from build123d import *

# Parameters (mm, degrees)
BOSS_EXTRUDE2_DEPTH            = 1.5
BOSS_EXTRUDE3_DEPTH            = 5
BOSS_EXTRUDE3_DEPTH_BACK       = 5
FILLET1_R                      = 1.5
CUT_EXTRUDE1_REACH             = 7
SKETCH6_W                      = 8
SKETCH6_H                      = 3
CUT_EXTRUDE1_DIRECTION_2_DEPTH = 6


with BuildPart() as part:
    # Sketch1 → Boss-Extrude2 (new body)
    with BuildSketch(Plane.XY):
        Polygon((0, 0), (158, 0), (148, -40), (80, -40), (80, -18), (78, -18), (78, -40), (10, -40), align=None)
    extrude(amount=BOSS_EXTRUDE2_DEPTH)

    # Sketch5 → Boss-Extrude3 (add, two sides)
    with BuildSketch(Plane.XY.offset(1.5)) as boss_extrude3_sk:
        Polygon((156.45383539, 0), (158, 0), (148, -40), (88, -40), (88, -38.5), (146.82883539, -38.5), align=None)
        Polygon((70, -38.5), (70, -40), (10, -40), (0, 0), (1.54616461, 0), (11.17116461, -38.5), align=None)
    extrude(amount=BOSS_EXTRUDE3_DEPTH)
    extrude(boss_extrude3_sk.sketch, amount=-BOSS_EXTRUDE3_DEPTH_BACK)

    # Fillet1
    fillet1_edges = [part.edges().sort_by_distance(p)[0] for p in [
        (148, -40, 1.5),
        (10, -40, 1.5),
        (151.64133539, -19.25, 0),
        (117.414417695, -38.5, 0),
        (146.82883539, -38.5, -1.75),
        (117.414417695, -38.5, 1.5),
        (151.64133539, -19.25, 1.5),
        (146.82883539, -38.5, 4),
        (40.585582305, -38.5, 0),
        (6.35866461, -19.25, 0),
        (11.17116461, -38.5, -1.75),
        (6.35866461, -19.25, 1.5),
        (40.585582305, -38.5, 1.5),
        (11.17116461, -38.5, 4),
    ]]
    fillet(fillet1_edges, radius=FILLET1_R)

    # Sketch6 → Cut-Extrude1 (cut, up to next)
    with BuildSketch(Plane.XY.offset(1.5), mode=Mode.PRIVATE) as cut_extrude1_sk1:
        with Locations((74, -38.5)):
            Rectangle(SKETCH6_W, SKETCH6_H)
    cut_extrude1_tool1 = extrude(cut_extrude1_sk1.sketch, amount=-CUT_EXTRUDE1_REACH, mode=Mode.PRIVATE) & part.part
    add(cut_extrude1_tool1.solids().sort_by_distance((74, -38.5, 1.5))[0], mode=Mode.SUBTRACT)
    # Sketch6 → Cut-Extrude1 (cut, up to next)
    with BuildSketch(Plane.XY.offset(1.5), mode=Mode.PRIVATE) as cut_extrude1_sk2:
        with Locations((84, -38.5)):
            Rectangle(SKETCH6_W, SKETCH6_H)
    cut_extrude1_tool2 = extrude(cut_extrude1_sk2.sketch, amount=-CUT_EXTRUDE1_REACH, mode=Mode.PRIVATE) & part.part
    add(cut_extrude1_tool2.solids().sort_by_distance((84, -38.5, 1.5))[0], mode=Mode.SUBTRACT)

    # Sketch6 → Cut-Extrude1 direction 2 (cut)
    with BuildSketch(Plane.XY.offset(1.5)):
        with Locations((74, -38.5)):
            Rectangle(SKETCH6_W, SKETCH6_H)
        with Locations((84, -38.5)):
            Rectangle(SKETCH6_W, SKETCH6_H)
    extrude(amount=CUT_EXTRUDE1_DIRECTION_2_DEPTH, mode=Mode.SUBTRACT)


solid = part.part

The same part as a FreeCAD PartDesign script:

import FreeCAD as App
import Part
import Sketcher
Q = App.Units.Quantity


def edges_at(feature, points):
    """Names of the edges that pass closest to the given points."""
    edges = feature.Shape.Edges
    near = lambda p: min(range(len(edges)), key=lambda i: edges[i].distToShape(Part.Vertex(*p))[0])
    return sorted({f"Edge{near(p) + 1}" for p in points})

doc = App.newDocument("Part")
body = doc.addObject("PartDesign::Body", "Body")

sketch1 = body.newObject("Sketcher::SketchObject", "Sketch")
sketch1.AttachmentSupport = (doc.getObject("XY_Plane"), [""])
sketch1.MapMode = "FlatFace"
sketch1.addGeometry([
    Part.LineSegment(App.Vector(158, 0, 0), App.Vector(0, 0, 0)),
    Part.LineSegment(App.Vector(0, 0, 0), App.Vector(10, -40, 0)),
    Part.LineSegment(App.Vector(10, -40, 0), App.Vector(78, -40, 0)),
    Part.LineSegment(App.Vector(78, -40, 0), App.Vector(78, -18, 0)),
    Part.LineSegment(App.Vector(78, -18, 0), App.Vector(80, -18, 0)),
    Part.LineSegment(App.Vector(80, -18, 0), App.Vector(80, -40, 0)),
    Part.LineSegment(App.Vector(80, -40, 0), App.Vector(148, -40, 0)),
    Part.LineSegment(App.Vector(148, -40, 0), App.Vector(158, 0, 0)),
], False)
sketch1.addConstraint([
    Sketcher.Constraint("Coincident", 0, 2, 1, 1),
    Sketcher.Constraint("Coincident", 1, 2, 2, 1),
    Sketcher.Constraint("Coincident", 2, 2, 3, 1),
    Sketcher.Constraint("Coincident", 3, 2, 4, 1),
    Sketcher.Constraint("Coincident", 4, 2, 5, 1),
    Sketcher.Constraint("Coincident", 5, 2, 6, 1),
    Sketcher.Constraint("Coincident", 6, 2, 7, 1),
    Sketcher.Constraint("Coincident", 7, 2, 0, 1),
    Sketcher.Constraint("Horizontal", 0),
    Sketcher.Constraint("Horizontal", 2),
    Sketcher.Constraint("Vertical", 3),
    Sketcher.Constraint("Horizontal", 4),
    Sketcher.Constraint("Vertical", 5),
    Sketcher.Constraint("Horizontal", 6),
    Sketcher.Constraint("Coincident", 0, 2, -1, 1),
    Sketcher.Constraint("Horizontal", 2, 2, 5, 2),
    Sketcher.Constraint("Equal", 2, 6),
    Sketcher.Constraint("Equal", 1, 7),
    Sketcher.Constraint("DistanceX", 0, 2, 0, 1, Q("158 mm")),
    Sketcher.Constraint("DistanceX", 2, 1, 2, 2, Q("68 mm")),
    Sketcher.Constraint("DistanceX", 4, 1, 4, 2, Q("2 mm")),
    Sketcher.Constraint("DistanceY", 3, 1, 3, 2, Q("22 mm")),
    Sketcher.Constraint("DistanceY", 1, 2, -1, 1, Q("40 mm")),
])
pad1 = body.newObject("PartDesign::Pad", "Pad")
pad1.Profile = sketch1
pad1.Length = 1.5

sketch2 = body.newObject("Sketcher::SketchObject", "Sketch001")
sketch2.AttachmentSupport = (doc.getObject("XY_Plane"), [""])
sketch2.MapMode = "FlatFace"
sketch2.AttachmentOffset = App.Placement(App.Vector(0, 0, 1.5), App.Rotation())
sketch2.addGeometry([
    Part.LineSegment(App.Vector(158, 0, 0), App.Vector(156.5, 0, 0)),
    Part.LineSegment(App.Vector(156.5, 0, 0), App.Vector(146.8, -38.5, 0)),
    Part.LineSegment(App.Vector(146.8, -38.5, 0), App.Vector(88, -38.5, 0)),
    Part.LineSegment(App.Vector(88, -38.5, 0), App.Vector(88, -40, 0)),
    Part.LineSegment(App.Vector(88, -40, 0), App.Vector(148, -40, 0)),
    Part.LineSegment(App.Vector(148, -40, 0), App.Vector(158, 0, 0)),
    Part.LineSegment(App.Vector(70, -40, 0), App.Vector(70, -38.5, 0)),
    Part.LineSegment(App.Vector(70, -38.5, 0), App.Vector(11.2, -38.5, 0)),
    Part.LineSegment(App.Vector(11.2, -38.5, 0), App.Vector(1.5, 0, 0)),
    Part.LineSegment(App.Vector(1.5, 0, 0), App.Vector(0, 0, 0)),
    Part.LineSegment(App.Vector(0, 0, 0), App.Vector(10, -40, 0)),
    Part.LineSegment(App.Vector(10, -40, 0), App.Vector(70, -40, 0)),
], False)
sketch2.addConstraint([
    Sketcher.Constraint("Coincident", 0, 2, 1, 1),
    Sketcher.Constraint("Coincident", 1, 2, 2, 1),
    Sketcher.Constraint("Coincident", 2, 2, 3, 1),
    Sketcher.Constraint("Coincident", 3, 2, 4, 1),
    Sketcher.Constraint("Coincident", 4, 2, 5, 1),
    Sketcher.Constraint("Coincident", 5, 2, 0, 1),
    Sketcher.Constraint("Coincident", 6, 2, 7, 1),
    Sketcher.Constraint("Coincident", 7, 2, 8, 1),
    Sketcher.Constraint("Coincident", 8, 2, 9, 1),
    Sketcher.Constraint("Coincident", 9, 2, 10, 1),
    Sketcher.Constraint("Coincident", 10, 2, 11, 1),
    Sketcher.Constraint("Coincident", 11, 2, 6, 1),
    Sketcher.Constraint("Horizontal", 0),
    Sketcher.Constraint("Horizontal", 2),
    Sketcher.Constraint("Vertical", 3),
    Sketcher.Constraint("Horizontal", 4),
    Sketcher.Constraint("Vertical", 6),
    Sketcher.Constraint("Horizontal", 7),
    Sketcher.Constraint("Horizontal", 9),
    Sketcher.Constraint("Horizontal", 11),
    Sketcher.Constraint("Coincident", 9, 2, -1, 1),
    Sketcher.Constraint("PointOnObject", 0, 2, -1),
    Sketcher.Constraint("Parallel", 1, 5),
    Sketcher.Constraint("Parallel", 8, 10),
    Sketcher.Constraint("Horizontal", 2, 2, 6, 2),
    Sketcher.Constraint("Horizontal", 4, 2, 10, 2),
    Sketcher.Constraint("Equal", 2, 7),
    Sketcher.Constraint("Equal", 0, 9),
    Sketcher.Constraint("Equal", 4, 11),
    Sketcher.Constraint("DistanceX", 4, 1, 4, 2, Q("60 mm")),
    Sketcher.Constraint("DistanceY", 3, 2, 3, 1, Q("1.5 mm")),
    Sketcher.Constraint("DistanceX", -1, 1, 2, 2, Q("88 mm")),
    Sketcher.Constraint("DistanceY", 3, 2, -1, 1, Q("40 mm")),
    Sketcher.Constraint("DistanceX", -1, 1, 5, 2, Q("158 mm")),
    Sketcher.Constraint("DistanceX", 0, 2, 0, 1, Q("1.546165 mm")),
])
pad2 = body.newObject("PartDesign::Pad", "Pad001")
pad2.Profile = sketch2
pad2.Type = "TwoLengths"
pad2.Length = 5
pad2.Length2 = 5
doc.recompute()

fillet = body.newObject("PartDesign::Fillet", "Fillet")
fillet.Base = (pad2, edges_at(pad2, [
    (148, -40, 1.5),
    (10, -40, 1.5),
    (151.641, -19.25, 0),
    (117.414, -38.5, 0),
    (146.829, -38.5, -1.75),
    (117.414, -38.5, 1.5),
    (151.641, -19.25, 1.5),
    (146.829, -38.5, 4),
    (40.586, -38.5, 0),
    (6.359, -19.25, 0),
    (11.171, -38.5, -1.75),
    (6.359, -19.25, 1.5),
    (40.586, -38.5, 1.5),
    (11.171, -38.5, 4),
]))
fillet.Radius = 1.5

sketch3 = body.newObject("Sketcher::SketchObject", "Sketch002")
sketch3.AttachmentSupport = (doc.getObject("XY_Plane"), [""])
sketch3.MapMode = "FlatFace"
sketch3.AttachmentOffset = App.Placement(App.Vector(0, 0, 1.5), App.Rotation())
sketch3.addGeometry([
    Part.LineSegment(App.Vector(70, -37, 0), App.Vector(70, -40, 0)),
    Part.LineSegment(App.Vector(70, -40, 0), App.Vector(78, -40, 0)),
    Part.LineSegment(App.Vector(78, -40, 0), App.Vector(78, -37, 0)),
    Part.LineSegment(App.Vector(78, -37, 0), App.Vector(70, -37, 0)),
], False)
sketch3.addConstraint([
    Sketcher.Constraint("Coincident", 0, 2, 1, 1),
    Sketcher.Constraint("Coincident", 1, 2, 2, 1),
    Sketcher.Constraint("Coincident", 2, 2, 3, 1),
    Sketcher.Constraint("Coincident", 3, 2, 0, 1),
    Sketcher.Constraint("Vertical", 0),
    Sketcher.Constraint("Horizontal", 1),
    Sketcher.Constraint("Vertical", 2),
    Sketcher.Constraint("Horizontal", 3),
    Sketcher.Constraint("DistanceX", 1, 1, 1, 2, Q("8 mm")),
    Sketcher.Constraint("DistanceY", 0, 2, 0, 1, Q("3 mm")),
    Sketcher.Constraint("DistanceX", -1, 1, 0, 2, Q("70 mm")),
    Sketcher.Constraint("DistanceY", 0, 2, -1, 1, Q("40 mm")),
])
pocket1 = body.newObject("PartDesign::Pocket", "Pocket")
pocket1.Profile = sketch3
pocket1.Type = "UpToFirst"

sketch4 = body.newObject("Sketcher::SketchObject", "Sketch003")
sketch4.AttachmentSupport = (doc.getObject("XY_Plane"), [""])
sketch4.MapMode = "FlatFace"
sketch4.AttachmentOffset = App.Placement(App.Vector(0, 0, 1.5), App.Rotation())
sketch4.addGeometry([
    Part.LineSegment(App.Vector(80, -37, 0), App.Vector(80, -40, 0)),
    Part.LineSegment(App.Vector(80, -40, 0), App.Vector(88, -40, 0)),
    Part.LineSegment(App.Vector(88, -40, 0), App.Vector(88, -37, 0)),
    Part.LineSegment(App.Vector(88, -37, 0), App.Vector(80, -37, 0)),
], False)
sketch4.addConstraint([
    Sketcher.Constraint("Coincident", 0, 2, 1, 1),
    Sketcher.Constraint("Coincident", 1, 2, 2, 1),
    Sketcher.Constraint("Coincident", 2, 2, 3, 1),
    Sketcher.Constraint("Coincident", 3, 2, 0, 1),
    Sketcher.Constraint("Vertical", 0),
    Sketcher.Constraint("Horizontal", 1),
    Sketcher.Constraint("Vertical", 2),
    Sketcher.Constraint("Horizontal", 3),
    Sketcher.Constraint("DistanceX", 1, 1, 1, 2, Q("8 mm")),
    Sketcher.Constraint("DistanceY", 0, 2, 0, 1, Q("3 mm")),
    Sketcher.Constraint("DistanceX", -1, 1, 0, 2, Q("80 mm")),
    Sketcher.Constraint("DistanceY", 0, 2, -1, 1, Q("40 mm")),
])
pocket2 = body.newObject("PartDesign::Pocket", "Pocket001")
pocket2.Profile = sketch4
pocket2.Type = "UpToFirst"

sketch5 = body.newObject("Sketcher::SketchObject", "Sketch004")
sketch5.AttachmentSupport = (doc.getObject("XY_Plane"), [""])
sketch5.MapMode = "FlatFace"
sketch5.AttachmentOffset = App.Placement(App.Vector(0, 0, 1.5), App.Rotation())
sketch5.addGeometry([
    Part.LineSegment(App.Vector(70, -37, 0), App.Vector(70, -40, 0)),
    Part.LineSegment(App.Vector(70, -40, 0), App.Vector(78, -40, 0)),
    Part.LineSegment(App.Vector(78, -40, 0), App.Vector(78, -37, 0)),
    Part.LineSegment(App.Vector(78, -37, 0), App.Vector(70, -37, 0)),
    Part.LineSegment(App.Vector(80, -37, 0), App.Vector(80, -40, 0)),
    Part.LineSegment(App.Vector(80, -40, 0), App.Vector(88, -40, 0)),
    Part.LineSegment(App.Vector(88, -40, 0), App.Vector(88, -37, 0)),
    Part.LineSegment(App.Vector(88, -37, 0), App.Vector(80, -37, 0)),
], False)
sketch5.addConstraint([
    Sketcher.Constraint("Coincident", 0, 2, 1, 1),
    Sketcher.Constraint("Coincident", 1, 2, 2, 1),
    Sketcher.Constraint("Coincident", 2, 2, 3, 1),
    Sketcher.Constraint("Coincident", 3, 2, 0, 1),
    Sketcher.Constraint("Coincident", 4, 2, 5, 1),
    Sketcher.Constraint("Coincident", 5, 2, 6, 1),
    Sketcher.Constraint("Coincident", 6, 2, 7, 1),
    Sketcher.Constraint("Coincident", 7, 2, 4, 1),
    Sketcher.Constraint("Vertical", 0),
    Sketcher.Constraint("Horizontal", 1),
    Sketcher.Constraint("Vertical", 2),
    Sketcher.Constraint("Horizontal", 3),
    Sketcher.Constraint("Vertical", 4),
    Sketcher.Constraint("Horizontal", 5),
    Sketcher.Constraint("Vertical", 6),
    Sketcher.Constraint("Horizontal", 7),
    Sketcher.Constraint("Horizontal", 1, 2, 4, 2),
    Sketcher.Constraint("Horizontal", 3, 2, 6, 2),
    Sketcher.Constraint("Equal", 3, 5),
    Sketcher.Constraint("DistanceX", 1, 1, 1, 2, Q("8 mm")),
    Sketcher.Constraint("DistanceY", 0, 2, 0, 1, Q("3 mm")),
    Sketcher.Constraint("DistanceX", -1, 1, 0, 2, Q("70 mm")),
    Sketcher.Constraint("DistanceY", 0, 2, -1, 1, Q("40 mm")),
    Sketcher.Constraint("DistanceX", -1, 1, 4, 2, Q("80 mm")),
])
pocket3 = body.newObject("PartDesign::Pocket", "Pocket002")
pocket3.Profile = sketch5
pocket3.Length = 6
pocket3.Reversed = True

doc.recompute()
